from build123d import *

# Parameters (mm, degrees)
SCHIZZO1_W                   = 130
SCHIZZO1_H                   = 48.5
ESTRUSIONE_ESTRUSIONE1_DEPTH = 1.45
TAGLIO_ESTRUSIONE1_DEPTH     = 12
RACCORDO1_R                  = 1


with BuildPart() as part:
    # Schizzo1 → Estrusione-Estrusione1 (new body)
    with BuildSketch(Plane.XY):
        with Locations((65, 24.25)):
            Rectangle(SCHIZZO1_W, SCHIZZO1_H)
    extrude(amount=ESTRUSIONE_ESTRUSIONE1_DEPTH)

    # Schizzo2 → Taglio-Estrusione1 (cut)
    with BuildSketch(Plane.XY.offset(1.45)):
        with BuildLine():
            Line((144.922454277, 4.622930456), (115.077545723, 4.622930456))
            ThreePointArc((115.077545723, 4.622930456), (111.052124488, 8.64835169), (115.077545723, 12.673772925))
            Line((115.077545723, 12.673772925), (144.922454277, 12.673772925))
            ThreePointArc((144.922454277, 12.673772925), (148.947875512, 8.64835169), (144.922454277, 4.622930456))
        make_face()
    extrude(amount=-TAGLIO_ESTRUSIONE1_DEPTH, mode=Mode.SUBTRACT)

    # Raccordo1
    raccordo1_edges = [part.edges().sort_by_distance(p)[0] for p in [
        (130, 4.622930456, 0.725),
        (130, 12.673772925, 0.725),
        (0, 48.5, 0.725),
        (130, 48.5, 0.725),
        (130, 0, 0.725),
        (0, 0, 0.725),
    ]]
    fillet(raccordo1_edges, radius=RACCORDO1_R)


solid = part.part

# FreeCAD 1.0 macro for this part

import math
import FreeCAD as App
import Part
import Sketcher

V = App.Vector


def edges_at(feature, points):
    """Names of the edges that pass closest to the given points."""
    edges = feature.Shape.Edges
    near = lambda p: min(range(len(edges)), key=lambda i: edges[i].distToShape(Part.Vertex(*p))[0])
    return sorted({f"Edge{near(p) + 1}" for p in points})


def add_polygon(sketch, points):
    """Adds a closed chain of lines whose ends are joined by coincident constraints."""
    first, n = sketch.GeometryCount, len(points)
    for a, b in zip(points, points[1:] + points[:1]):
        sketch.addGeometry(Part.LineSegment(App.Vector(*a, 0), App.Vector(*b, 0)), False)
    for i in range(n):
        sketch.addConstraint(Sketcher.Constraint("Coincident", first + i, 2, first + (i + 1) % n, 1))

doc = App.newDocument("Part")
body = doc.addObject("PartDesign::Body", "Body")

# Sketch on XY plane
sketch1 = doc.addObject("Sketcher::SketchObject", "Sketch")
body.addObject(sketch1)
sketch1.AttachmentSupport = (doc.XY_Plane, [""])
sketch1.MapMode = "FlatFace"
add_polygon(sketch1, [(0, 48.5), (0, 0), (130, 0), (130, 48.5)])  # lines 0-3
sketch1.addConstraint(Sketcher.Constraint("Vertical", 0))
sketch1.addConstraint(Sketcher.Constraint("Horizontal", 1))
sketch1.addConstraint(Sketcher.Constraint("Vertical", 2))
sketch1.addConstraint(Sketcher.Constraint("Horizontal", 3))
sketch1.addConstraint(Sketcher.Constraint("Coincident", 0, 2, -1, 1))
sketch1.addConstraint(Sketcher.Constraint("DistanceX", 1, 1, 1, 2, 130.0))
sketch1.addConstraint(Sketcher.Constraint("DistanceY", 0, 2, 0, 1, 48.5))
pad1 = doc.addObject("PartDesign::Pad", "Pad")
body.addObject(pad1)
pad1.Profile = sketch1
pad1.Length = 1.45

# Sketch on XY plane
sketch2 = doc.addObject("Sketcher::SketchObject", "Sketch001")
body.addObject(sketch2)
sketch2.AttachmentSupport = (doc.XY_Plane, [""])
sketch2.MapMode = "FlatFace"
sketch2.AttachmentOffset = App.Placement(V(0, 0, 1.45), App.Rotation())
sketch2.addGeometry(Part.LineSegment(V(115.077546, 4.62293, 0), V(144.922454, 4.62293, 0)), False)
sketch2.addGeometry(Part.ArcOfCircle(Part.Circle(V(144.922454, 8.648352, 0), V(0, 0, 1), 4.025421), math.radians(-90), math.radians(90)), False)
sketch2.addGeometry(Part.LineSegment(V(144.922454, 12.673773, 0), V(115.077546, 12.673773, 0)), False)
sketch2.addGeometry(Part.ArcOfCircle(Part.Circle(V(115.077546, 8.648352, 0), V(0, 0, 1), 4.025421), math.radians(90), math.radians(270)), False)
sketch2.addConstraint(Sketcher.Constraint("Tangent", 0, 2, 1, 1))
sketch2.addConstraint(Sketcher.Constraint("Tangent", 1, 2, 2, 1))
sketch2.addConstraint(Sketcher.Constraint("Tangent", 2, 2, 3, 1))
sketch2.addConstraint(Sketcher.Constraint("Tangent", 3, 2, 0, 1))
sketch2.addConstraint(Sketcher.Constraint("Horizontal", 0))
sketch2.addConstraint(Sketcher.Constraint("Horizontal", 2))
sketch2.addConstraint(Sketcher.Constraint("Radius", 1, 4.025421))
sketch2.addConstraint(Sketcher.Constraint("DistanceX", 0, 1, 0, 2, 29.844909))
sketch2.addConstraint(Sketcher.Constraint("DistanceY", -1, 1, 1, 3, 8.648352))
sketch2.addConstraint(Sketcher.Constraint("DistanceX", -1, 1, 1, 3, 144.922454))
pocket1 = doc.addObject("PartDesign::Pocket", "Pocket")
body.addObject(pocket1)
pocket1.Profile = sketch2
pocket1.Length = 12
doc.recompute()

fillet = doc.addObject("PartDesign::Fillet", "Fillet")
body.addObject(fillet)
fillet.Base = (pocket1, edges_at(pocket1, [
    (130, 4.623, 0.725),
    (130, 12.674, 0.725),
    (0, 48.5, 0.725),
    (130, 48.5, 0.725),
    (130, 0, 0.725),
    (0, 0, 0.725),
]))
fillet.Radius = 1

doc.recompute()
